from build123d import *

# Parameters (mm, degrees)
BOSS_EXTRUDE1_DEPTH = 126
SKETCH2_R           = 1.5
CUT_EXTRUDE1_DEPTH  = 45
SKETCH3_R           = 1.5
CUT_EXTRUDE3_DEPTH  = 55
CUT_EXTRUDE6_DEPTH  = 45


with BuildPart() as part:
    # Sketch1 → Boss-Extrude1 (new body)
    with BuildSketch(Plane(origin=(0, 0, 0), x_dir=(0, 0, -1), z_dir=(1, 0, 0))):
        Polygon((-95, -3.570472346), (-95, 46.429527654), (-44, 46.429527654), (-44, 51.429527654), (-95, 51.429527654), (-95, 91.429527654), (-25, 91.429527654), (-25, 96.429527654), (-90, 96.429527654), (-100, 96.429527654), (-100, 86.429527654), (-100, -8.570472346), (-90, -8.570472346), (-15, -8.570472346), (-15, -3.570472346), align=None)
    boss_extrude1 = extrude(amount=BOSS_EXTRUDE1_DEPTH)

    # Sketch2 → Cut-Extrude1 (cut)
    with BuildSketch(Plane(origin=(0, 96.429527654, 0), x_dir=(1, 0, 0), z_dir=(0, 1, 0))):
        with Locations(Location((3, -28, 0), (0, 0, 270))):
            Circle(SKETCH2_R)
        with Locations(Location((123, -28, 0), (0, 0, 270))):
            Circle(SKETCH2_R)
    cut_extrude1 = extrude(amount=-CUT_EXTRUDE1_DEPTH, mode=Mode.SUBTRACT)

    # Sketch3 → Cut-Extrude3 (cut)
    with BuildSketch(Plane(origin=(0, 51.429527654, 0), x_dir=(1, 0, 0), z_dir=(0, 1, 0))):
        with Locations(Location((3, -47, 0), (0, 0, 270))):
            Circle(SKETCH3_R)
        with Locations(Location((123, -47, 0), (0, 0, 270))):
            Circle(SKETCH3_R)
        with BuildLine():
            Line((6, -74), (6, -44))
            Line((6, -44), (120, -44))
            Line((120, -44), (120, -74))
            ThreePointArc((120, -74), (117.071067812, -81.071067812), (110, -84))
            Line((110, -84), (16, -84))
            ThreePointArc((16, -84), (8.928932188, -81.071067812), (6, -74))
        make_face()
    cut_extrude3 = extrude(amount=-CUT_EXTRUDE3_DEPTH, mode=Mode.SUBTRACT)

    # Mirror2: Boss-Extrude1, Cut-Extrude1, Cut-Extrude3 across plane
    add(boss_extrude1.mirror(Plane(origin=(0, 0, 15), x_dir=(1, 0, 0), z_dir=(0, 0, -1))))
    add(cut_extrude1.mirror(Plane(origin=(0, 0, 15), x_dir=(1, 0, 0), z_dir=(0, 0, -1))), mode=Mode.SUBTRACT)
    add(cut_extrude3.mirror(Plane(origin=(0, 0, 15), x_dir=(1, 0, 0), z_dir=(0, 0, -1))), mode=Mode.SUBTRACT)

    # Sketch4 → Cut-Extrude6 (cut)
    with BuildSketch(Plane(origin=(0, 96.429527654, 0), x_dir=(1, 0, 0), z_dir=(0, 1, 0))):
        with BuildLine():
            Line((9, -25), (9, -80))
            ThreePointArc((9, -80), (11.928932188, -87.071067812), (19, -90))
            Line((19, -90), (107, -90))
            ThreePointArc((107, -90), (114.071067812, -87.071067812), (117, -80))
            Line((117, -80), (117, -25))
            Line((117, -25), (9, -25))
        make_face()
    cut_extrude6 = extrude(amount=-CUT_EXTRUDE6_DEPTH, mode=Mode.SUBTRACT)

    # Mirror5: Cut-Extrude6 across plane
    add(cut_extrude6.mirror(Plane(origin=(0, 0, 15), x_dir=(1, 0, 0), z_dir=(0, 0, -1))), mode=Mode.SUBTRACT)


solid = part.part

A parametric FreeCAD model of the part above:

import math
import FreeCAD as App
import Part
import Sketcher
Q = App.Units.Quantity


def add_polygon(sketch, points):
    """Adds a closed chain of lines whose ends are joined by coincident constraints."""
    first, n = sketch.GeometryCount, len(points)
    for a, b in zip(points, points[1:] + points[:1]):
        sketch.addGeometry(Part.LineSegment(App.Vector(*a, 0), App.Vector(*b, 0)), False)
    for i in range(n):
        sketch.addConstraint(Sketcher.Constraint("Coincident", first + i, 2, first + (i + 1) % n, 1))

doc = App.newDocument("Part")
body = doc.addObject("PartDesign::Body", "Body")

# Sketch on YZ plane
sketch1 = body.newObject("Sketcher::SketchObject", "Sketch")
sketch1.AttachmentSupport = (doc.getObject("YZ_Plane"), [""])
sketch1.MapMode = "FlatFace"
add_polygon(sketch1, [(-4, 95), (46, 95), (46, 44), (51, 44), (51, 95), (91, 95), (91, 25), (96, 25), (96, 100), (-9, 100), (-9, 15), (-4, 15)])  # lines 0-11
sketch1.addConstraint(Sketcher.Constraint("Horizontal", 0))
sketch1.addConstraint(Sketcher.Constraint("Vertical", 1))
sketch1.addConstraint(Sketcher.Constraint("Horizontal", 2))
sketch1.addConstraint(Sketcher.Constraint("Vertical", 3))
sketch1.addConstraint(Sketcher.Constraint("Horizontal", 4))
sketch1.addConstraint(Sketcher.Constraint("Vertical", 5))
sketch1.addConstraint(Sketcher.Constraint("Horizontal", 6))
sketch1.addConstraint(Sketcher.Constraint("Vertical", 7))
sketch1.addConstraint(Sketcher.Constraint("Horizontal", 8))
sketch1.addConstraint(Sketcher.Constraint("Vertical", 9))
sketch1.addConstraint(Sketcher.Constraint("Horizontal", 10))
sketch1.addConstraint(Sketcher.Constraint("Vertical", 11))
sketch1.addConstraint(Sketcher.Constraint("Horizontal", 0, 2, 3, 2))
sketch1.addConstraint(Sketcher.Constraint("Equal", 2, 6))
sketch1.addConstraint(Sketcher.Constraint("Equal", 6, 10))
sketch1.addConstraint(Sketcher.Constraint("DistanceX", 0, 1, 0, 2, Q("50 mm")))
sketch1.addConstraint(Sketcher.Constraint("DistanceX", 2, 1, 2, 2, Q("5 mm")))
sketch1.addConstraint(Sketcher.Constraint("DistanceX", 4, 1, 4, 2, Q("40 mm")))
sketch1.addConstraint(Sketcher.Constraint("DistanceY", 1, 2, 1, 1, Q("51 mm")))
sketch1.addConstraint(Sketcher.Constraint("DistanceY", 5, 2, 5, 1, Q("70 mm")))
sketch1.addConstraint(Sketcher.Constraint("DistanceY", 7, 1, 7, 2, Q("75 mm")))
sketch1.addConstraint(Sketcher.Constraint("DistanceY", 9, 2, 9, 1, Q("85 mm")))
sketch1.addConstraint(Sketcher.Constraint("DistanceY", -1, 1, 0, 2, Q("95 mm")))
sketch1.addConstraint(Sketcher.Constraint("DistanceX", -1, 1, 0, 2, Q("46.429528 mm")))
pad1 = body.newObject("PartDesign::Pad", "Pad")
pad1.Profile = sketch1
pad1.Length = 126

# Sketch on XZ plane
sketch2 = body.newObject("Sketcher::SketchObject", "Sketch001")
sketch2.AttachmentSupport = (doc.getObject("XZ_Plane"), [""])
sketch2.MapMode = "FlatFace"
sketch2.AttachmentOffset = App.Placement(App.Vector(0, 0, -96.429528), App.Rotation())
sketch2.addGeometry(Part.Circle(App.Vector(3, 28, 0), App.Vector(0, 0, 1), 1.5), False)
sketch2.addGeometry(Part.Circle(App.Vector(123, 28, 0), App.Vector(0, 0, 1), 1.5), False)
sketch2.addConstraint(Sketcher.Constraint("Equal", 0, 1))
sketch2.addConstraint(Sketcher.Constraint("Horizontal", 0, 3, 1, 3))
sketch2.addConstraint(Sketcher.Constraint("Diameter", 0, Q("3 mm")))
sketch2.addConstraint(Sketcher.Constraint("DistanceX", -1, 1, 0, 3, Q("3 mm")))
sketch2.addConstraint(Sketcher.Constraint("DistanceY", -1, 1, 0, 3, Q("28 mm")))
sketch2.addConstraint(Sketcher.Constraint("DistanceX", -1, 1, 1, 3, Q("123 mm")))
pocket1 = body.newObject("PartDesign::Pocket", "Pocket")
pocket1.Profile = sketch2
pocket1.Length = 45
pocket1.Reversed = True

# Sketch on XZ plane
sketch3 = body.newObject("Sketcher::SketchObject", "Sketch002")
sketch3.AttachmentSupport = (doc.getObject("XZ_Plane"), [""])
sketch3.MapMode = "FlatFace"
sketch3.AttachmentOffset = App.Placement(App.Vector(0, 0, -51.429528), App.Rotation())
sketch3.addGeometry(Part.Circle(App.Vector(3, 47, 0), App.Vector(0, 0, 1), 1.5), False)
sketch3.addGeometry(Part.Circle(App.Vector(123, 47, 0), App.Vector(0, 0, 1), 1.5), False)
sketch3.addGeometry(Part.LineSegment(App.Vector(6, 44, 0), App.Vector(6, 74, 0)), False)
sketch3.addGeometry(Part.ArcOfCircle(Part.Circle(App.Vector(16, 74, 0), App.Vector(0, 0, 1), 10), math.radians(90), math.radians(180)), False)
sketch3.addGeometry(Part.LineSegment(App.Vector(16, 84, 0), App.Vector(110, 84, 0)), False)
sketch3.addGeometry(Part.ArcOfCircle(Part.Circle(App.Vector(110, 74, 0), App.Vector(0, 0, 1), 10), math.radians(0), math.radians(90)), False)
sketch3.addGeometry(Part.LineSegment(App.Vector(120, 74, 0), App.Vector(120, 44, 0)), False)
sketch3.addGeometry(Part.LineSegment(App.Vector(120, 44, 0), App.Vector(6, 44, 0)), False)
sketch3.addConstraint(Sketcher.Constraint("Tangent", 2, 2, 3, 2))
sketch3.addConstraint(Sketcher.Constraint("Tangent", 3, 1, 4, 1))
sketch3.addConstraint(Sketcher.Constraint("Tangent", 4, 2, 5, 2))
sketch3.addConstraint(Sketcher.Constraint("Tangent", 5, 1, 6, 1))
sketch3.addConstraint(Sketcher.Constraint("Coincident", 6, 2, 7, 1))
sketch3.addConstraint(Sketcher.Constraint("Coincident", 7, 2, 2, 1))
sketch3.addConstraint(Sketcher.Constraint("Vertical", 2))
sketch3.addConstraint(Sketcher.Constraint("Horizontal", 4))
sketch3.addConstraint(Sketcher.Constraint("Vertical", 6))
sketch3.addConstraint(Sketcher.Constraint("Horizontal", 7))
sketch3.addConstraint(Sketcher.Constraint("Equal", 0, 1))
sketch3.addConstraint(Sketcher.Constraint("Equal", 3, 5))
sketch3.addConstraint(Sketcher.Constraint("Horizontal", 0, 3, 1, 3))
sketch3.addConstraint(Sketcher.Constraint("Diameter", 0, Q("3 mm")))
sketch3.addConstraint(Sketcher.Constraint("Radius", 3, Q("10 mm")))
sketch3.addConstraint(Sketcher.Constraint("DistanceX", 4, 1, 4, 2, Q("94 mm")))
sketch3.addConstraint(Sketcher.Constraint("DistanceY", 2, 1, 2, 2, Q("30 mm")))
sketch3.addConstraint(Sketcher.Constraint("DistanceX", -1, 1, 0, 3, Q("3 mm")))
sketch3.addConstraint(Sketcher.Constraint("DistanceY", -1, 1, 0, 3, Q("47 mm")))
sketch3.addConstraint(Sketcher.Constraint("DistanceX", -1, 1, 1, 3, Q("123 mm")))
sketch3.addConstraint(Sketcher.Constraint("DistanceX", -1, 1, 3, 3, Q("16 mm")))
sketch3.addConstraint(Sketcher.Constraint("DistanceY", -1, 1, 3, 3, Q("74 mm")))
pocket2 = body.newObject("PartDesign::Pocket", "Pocket001")
pocket2.Profile = sketch3
pocket2.Length = 55
pocket2.Reversed = True
doc.recompute()

datumplane = body.newObject("PartDesign::Plane", "DatumPlane")
datumplane.AttachmentSupport = (doc.getObject("XY_Plane"), [""])
datumplane.MapMode = "FlatFace"
datumplane.AttachmentOffset = App.Placement(App.Vector(0, 0, 15), App.Rotation())
mirrored = body.newObject("PartDesign::Mirrored", "Mirrored")
mirrored.Originals = [pad1, pocket1, pocket2]
mirrored.MirrorPlane = (datumplane, [""])
body.Tip = mirrored

# Sketch on XZ plane
sketch4 = body.newObject("Sketcher::SketchObject", "Sketch003")
sketch4.AttachmentSupport = (doc.getObject("XZ_Plane"), [""])
sketch4.MapMode = "FlatFace"
sketch4.AttachmentOffset = App.Placement(App.Vector(0, 0, -96.429528), App.Rotation())
sketch4.addGeometry(Part.LineSegment(App.Vector(9, 25, 0), App.Vector(9, 80, 0)), False)
sketch4.addGeometry(Part.ArcOfCircle(Part.Circle(App.Vector(19, 80, 0), App.Vector(0, 0, 1), 10), math.radians(90), math.radians(180)), False)
sketch4.addGeometry(Part.LineSegment(App.Vector(19, 90, 0), App.Vector(107, 90, 0)), False)
sketch4.addGeometry(Part.ArcOfCircle(Part.Circle(App.Vector(107, 80, 0), App.Vector(0, 0, 1), 10), math.radians(0), math.radians(90)), False)
sketch4.addGeometry(Part.LineSegment(App.Vector(117, 80, 0), App.Vector(117, 25, 0)), False)
sketch4.addGeometry(Part.LineSegment(App.Vector(117, 25, 0), App.Vector(9, 25, 0)), False)
sketch4.addConstraint(Sketcher.Constraint("Tangent", 0, 2, 1, 2))
sketch4.addConstraint(Sketcher.Constraint("Tangent", 1, 1, 2, 1))
sketch4.addConstraint(Sketcher.Constraint("Tangent", 2, 2, 3, 2))
sketch4.addConstraint(Sketcher.Constraint("Tangent", 3, 1, 4, 1))
sketch4.addConstraint(Sketcher.Constraint("Coincident", 4, 2, 5, 1))
sketch4.addConstraint(Sketcher.Constraint("Coincident", 5, 2, 0, 1))
sketch4.addConstraint(Sketcher.Constraint("Vertical", 0))
sketch4.addConstraint(Sketcher.Constraint("Horizontal", 2))
sketch4.addConstraint(Sketcher.Constraint("Vertical", 4))
sketch4.addConstraint(Sketcher.Constraint("Horizontal", 5))
sketch4.addConstraint(Sketcher.Constraint("Equal", 1, 3))
sketch4.addConstraint(Sketcher.Constraint("Radius", 1, Q("10 mm")))
sketch4.addConstraint(Sketcher.Constraint("DistanceX", 2, 1, 2, 2, Q("88 mm")))
sketch4.addConstraint(Sketcher.Constraint("DistanceY", 0, 1, 0, 2, Q("55 mm")))
sketch4.addConstraint(Sketcher.Constraint("DistanceX", -1, 1, 1, 3, Q("19 mm")))
sketch4.addConstraint(Sketcher.Constraint("DistanceY", -1, 1, 1, 3, Q("80 mm")))
pocket3 = body.newObject("PartDesign::Pocket", "Pocket002")
pocket3.Profile = sketch4
pocket3.Length = 45
pocket3.Reversed = True
doc.recompute()

datumplane2 = body.newObject("PartDesign::Plane", "DatumPlane001")
datumplane2.AttachmentSupport = (doc.getObject("XY_Plane"), [""])
datumplane2.MapMode = "FlatFace"
datumplane2.AttachmentOffset = App.Placement(App.Vector(0, 0, 15), App.Rotation())
mirrored2 = body.newObject("PartDesign::Mirrored", "Mirrored001")
mirrored2.Originals = [pocket3]
mirrored2.MirrorPlane = (datumplane2, [""])
body.Tip = mirrored2

doc.recompute()
